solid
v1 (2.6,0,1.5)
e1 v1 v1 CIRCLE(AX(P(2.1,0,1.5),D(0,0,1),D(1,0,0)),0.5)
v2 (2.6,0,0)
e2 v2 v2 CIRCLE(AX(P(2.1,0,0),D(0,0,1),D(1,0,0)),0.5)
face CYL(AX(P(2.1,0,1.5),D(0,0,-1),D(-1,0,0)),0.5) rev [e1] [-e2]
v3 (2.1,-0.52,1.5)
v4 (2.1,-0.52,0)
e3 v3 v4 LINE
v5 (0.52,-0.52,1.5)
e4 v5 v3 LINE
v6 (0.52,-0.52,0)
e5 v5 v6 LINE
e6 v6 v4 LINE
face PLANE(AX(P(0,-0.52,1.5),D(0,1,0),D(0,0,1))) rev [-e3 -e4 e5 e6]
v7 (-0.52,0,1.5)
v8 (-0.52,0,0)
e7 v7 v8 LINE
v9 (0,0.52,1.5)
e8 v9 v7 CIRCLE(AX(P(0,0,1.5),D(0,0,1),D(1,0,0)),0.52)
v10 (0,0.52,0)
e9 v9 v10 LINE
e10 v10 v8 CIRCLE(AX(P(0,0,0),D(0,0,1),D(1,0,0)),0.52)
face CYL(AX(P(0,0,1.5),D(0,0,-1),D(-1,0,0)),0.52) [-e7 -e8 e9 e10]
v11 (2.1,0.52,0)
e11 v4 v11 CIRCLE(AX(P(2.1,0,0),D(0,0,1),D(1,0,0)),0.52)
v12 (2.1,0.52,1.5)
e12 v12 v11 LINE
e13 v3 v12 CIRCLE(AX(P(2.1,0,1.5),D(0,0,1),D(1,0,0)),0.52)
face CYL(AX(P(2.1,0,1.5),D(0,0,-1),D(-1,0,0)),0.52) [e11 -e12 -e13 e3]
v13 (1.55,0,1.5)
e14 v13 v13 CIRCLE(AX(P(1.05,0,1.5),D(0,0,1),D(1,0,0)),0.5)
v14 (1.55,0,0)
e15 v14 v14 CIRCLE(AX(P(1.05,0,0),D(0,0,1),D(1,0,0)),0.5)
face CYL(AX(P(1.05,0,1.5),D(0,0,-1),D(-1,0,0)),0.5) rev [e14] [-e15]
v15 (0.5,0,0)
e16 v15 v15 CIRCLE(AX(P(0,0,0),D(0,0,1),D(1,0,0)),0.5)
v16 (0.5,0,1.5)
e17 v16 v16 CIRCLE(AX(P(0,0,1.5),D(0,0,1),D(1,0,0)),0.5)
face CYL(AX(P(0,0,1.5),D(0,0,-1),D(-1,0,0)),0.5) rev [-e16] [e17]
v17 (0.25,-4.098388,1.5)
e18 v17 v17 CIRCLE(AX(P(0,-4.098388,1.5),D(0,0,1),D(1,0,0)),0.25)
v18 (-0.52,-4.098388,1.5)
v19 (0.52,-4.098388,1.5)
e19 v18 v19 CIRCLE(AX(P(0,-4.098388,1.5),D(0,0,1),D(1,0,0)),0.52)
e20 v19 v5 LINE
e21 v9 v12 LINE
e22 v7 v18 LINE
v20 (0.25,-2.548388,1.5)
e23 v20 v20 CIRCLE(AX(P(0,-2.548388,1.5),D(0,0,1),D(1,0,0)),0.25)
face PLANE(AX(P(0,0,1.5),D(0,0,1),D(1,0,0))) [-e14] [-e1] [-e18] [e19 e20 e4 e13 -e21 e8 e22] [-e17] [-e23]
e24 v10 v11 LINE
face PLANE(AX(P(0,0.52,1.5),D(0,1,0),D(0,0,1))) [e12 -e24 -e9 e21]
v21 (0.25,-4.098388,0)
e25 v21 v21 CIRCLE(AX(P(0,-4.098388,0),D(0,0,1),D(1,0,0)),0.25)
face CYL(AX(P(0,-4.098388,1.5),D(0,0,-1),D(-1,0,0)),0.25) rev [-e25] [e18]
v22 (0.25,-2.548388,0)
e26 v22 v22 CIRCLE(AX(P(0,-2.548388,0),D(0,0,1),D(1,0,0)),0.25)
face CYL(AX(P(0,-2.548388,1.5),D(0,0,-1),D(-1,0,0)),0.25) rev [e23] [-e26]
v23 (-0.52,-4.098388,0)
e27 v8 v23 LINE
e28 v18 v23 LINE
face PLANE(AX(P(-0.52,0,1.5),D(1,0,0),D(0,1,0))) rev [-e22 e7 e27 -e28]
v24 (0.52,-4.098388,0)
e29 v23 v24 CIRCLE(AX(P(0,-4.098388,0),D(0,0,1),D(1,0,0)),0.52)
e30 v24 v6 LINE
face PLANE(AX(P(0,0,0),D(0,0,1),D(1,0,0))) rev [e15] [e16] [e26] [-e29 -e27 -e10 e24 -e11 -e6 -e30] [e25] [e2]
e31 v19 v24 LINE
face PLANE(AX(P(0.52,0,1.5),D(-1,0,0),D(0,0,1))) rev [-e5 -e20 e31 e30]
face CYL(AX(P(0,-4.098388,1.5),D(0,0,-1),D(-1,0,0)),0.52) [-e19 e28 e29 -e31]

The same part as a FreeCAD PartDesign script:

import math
import FreeCAD as App
import Part
import Sketcher
from FreeCAD import Vector

doc = App.newDocument("Part")
body = doc.addObject("PartDesign::Body", "Body")

# Sketch on XY plane
sketch1 = doc.addObject("Sketcher::SketchObject", "Sketch")
body.addObject(sketch1)
sketch1.AttachmentSupport = (doc.XY_Plane, [""])
sketch1.MapMode = "FlatFace"
sketch1.addGeometry([
    Part.LineSegment(Vector(-0.52, 0, 0), Vector(-0.52, -4.098388, 0)),  # 0
    Part.ArcOfCircle(Part.Circle(Vector(0, -4.098388, 0), Vector(0, 0, 1), 0.52), math.radians(180), math.radians(360)),  # 1
    Part.LineSegment(Vector(0.52, -4.098388, 0), Vector(0.52, -0.52, 0)),  # 2
    Part.LineSegment(Vector(0.52, -0.52, 0), Vector(2.1, -0.52, 0)),  # 3
    Part.ArcOfCircle(Part.Circle(Vector(2.1, 0, 0), Vector(0, 0, 1), 0.52), math.radians(-90), math.radians(90)),  # 4
    Part.LineSegment(Vector(2.1, 0.52, 0), Vector(0, 0.52, 0)),  # 5
    Part.ArcOfCircle(Part.Circle(Vector(0, 0, 0), Vector(0, 0, 1), 0.52), math.radians(90), math.radians(180)),  # 6
    Part.Circle(Vector(0, 0, 0), Vector(0, 0, 1), 0.5),  # 7
    Part.Circle(Vector(0, -2.548388, 0), Vector(0, 0, 1), 0.25),  # 8
    Part.Circle(Vector(1.05, 0, 0), Vector(0, 0, 1), 0.5),  # 9
    Part.Circle(Vector(0, -4.098388, 0), Vector(0, 0, 1), 0.25),  # 10
    Part.Circle(Vector(2.1, 0, 0), Vector(0, 0, 1), 0.5),  # 11
], False)
sketch1.addConstraint([
    Sketcher.Constraint("Tangent", 0, 2, 1, 1),
    Sketcher.Constraint("Tangent", 1, 2, 2, 1),
    Sketcher.Constraint("Coincident", 2, 2, 3, 1),
    Sketcher.Constraint("Tangent", 3, 2, 4, 1),
    Sketcher.Constraint("Tangent", 4, 2, 5, 1),
    Sketcher.Constraint("Tangent", 5, 2, 6, 1),
    Sketcher.Constraint("Tangent", 6, 2, 0, 1),
    Sketcher.Constraint("Vertical", 0),
    Sketcher.Constraint("Vertical", 2),
    Sketcher.Constraint("Horizontal", 3),
    Sketcher.Constraint("Horizontal", 5),
    Sketcher.Constraint("Coincident", 6, 3, -1, 1),
    Sketcher.Constraint("Coincident", 7, 3, -1, 1),
    Sketcher.Constraint("Coincident", 10, 3, 1, 3),
    Sketcher.Constraint("Coincident", 11, 3, 4, 3),
    Sketcher.Constraint("Equal", 1, 4),
    Sketcher.Constraint("Equal", 4, 6),
    Sketcher.Constraint("Equal", 7, 9),
    Sketcher.Constraint("Equal", 8, 10),
    Sketcher.Constraint("Equal", 9, 11),
    Sketcher.Constraint("PointOnObject", 8, 3, -2),
    Sketcher.Constraint("PointOnObject", 9, 3, -1),
    Sketcher.Constraint("Diameter", 7, 1.0),
    Sketcher.Constraint("Diameter", 8, 0.5),
    Sketcher.Constraint("Radius", 1, 0.52),
    Sketcher.Constraint("DistanceX", 5, 2, 5, 1, 2.1),
    Sketcher.Constraint("DistanceX", -1, 1, 9, 3, 1.05),
    Sketcher.Constraint("DistanceY", 1, 3, 8, 3, 1.55),
    Sketcher.Constraint("DistanceY", 0, 2, 0, 1, 4.098388),
])
pad1 = doc.addObject("PartDesign::Pad", "Pad")
body.addObject(pad1)
pad1.Profile = sketch1
pad1.Length = 1.5

doc.recompute()
